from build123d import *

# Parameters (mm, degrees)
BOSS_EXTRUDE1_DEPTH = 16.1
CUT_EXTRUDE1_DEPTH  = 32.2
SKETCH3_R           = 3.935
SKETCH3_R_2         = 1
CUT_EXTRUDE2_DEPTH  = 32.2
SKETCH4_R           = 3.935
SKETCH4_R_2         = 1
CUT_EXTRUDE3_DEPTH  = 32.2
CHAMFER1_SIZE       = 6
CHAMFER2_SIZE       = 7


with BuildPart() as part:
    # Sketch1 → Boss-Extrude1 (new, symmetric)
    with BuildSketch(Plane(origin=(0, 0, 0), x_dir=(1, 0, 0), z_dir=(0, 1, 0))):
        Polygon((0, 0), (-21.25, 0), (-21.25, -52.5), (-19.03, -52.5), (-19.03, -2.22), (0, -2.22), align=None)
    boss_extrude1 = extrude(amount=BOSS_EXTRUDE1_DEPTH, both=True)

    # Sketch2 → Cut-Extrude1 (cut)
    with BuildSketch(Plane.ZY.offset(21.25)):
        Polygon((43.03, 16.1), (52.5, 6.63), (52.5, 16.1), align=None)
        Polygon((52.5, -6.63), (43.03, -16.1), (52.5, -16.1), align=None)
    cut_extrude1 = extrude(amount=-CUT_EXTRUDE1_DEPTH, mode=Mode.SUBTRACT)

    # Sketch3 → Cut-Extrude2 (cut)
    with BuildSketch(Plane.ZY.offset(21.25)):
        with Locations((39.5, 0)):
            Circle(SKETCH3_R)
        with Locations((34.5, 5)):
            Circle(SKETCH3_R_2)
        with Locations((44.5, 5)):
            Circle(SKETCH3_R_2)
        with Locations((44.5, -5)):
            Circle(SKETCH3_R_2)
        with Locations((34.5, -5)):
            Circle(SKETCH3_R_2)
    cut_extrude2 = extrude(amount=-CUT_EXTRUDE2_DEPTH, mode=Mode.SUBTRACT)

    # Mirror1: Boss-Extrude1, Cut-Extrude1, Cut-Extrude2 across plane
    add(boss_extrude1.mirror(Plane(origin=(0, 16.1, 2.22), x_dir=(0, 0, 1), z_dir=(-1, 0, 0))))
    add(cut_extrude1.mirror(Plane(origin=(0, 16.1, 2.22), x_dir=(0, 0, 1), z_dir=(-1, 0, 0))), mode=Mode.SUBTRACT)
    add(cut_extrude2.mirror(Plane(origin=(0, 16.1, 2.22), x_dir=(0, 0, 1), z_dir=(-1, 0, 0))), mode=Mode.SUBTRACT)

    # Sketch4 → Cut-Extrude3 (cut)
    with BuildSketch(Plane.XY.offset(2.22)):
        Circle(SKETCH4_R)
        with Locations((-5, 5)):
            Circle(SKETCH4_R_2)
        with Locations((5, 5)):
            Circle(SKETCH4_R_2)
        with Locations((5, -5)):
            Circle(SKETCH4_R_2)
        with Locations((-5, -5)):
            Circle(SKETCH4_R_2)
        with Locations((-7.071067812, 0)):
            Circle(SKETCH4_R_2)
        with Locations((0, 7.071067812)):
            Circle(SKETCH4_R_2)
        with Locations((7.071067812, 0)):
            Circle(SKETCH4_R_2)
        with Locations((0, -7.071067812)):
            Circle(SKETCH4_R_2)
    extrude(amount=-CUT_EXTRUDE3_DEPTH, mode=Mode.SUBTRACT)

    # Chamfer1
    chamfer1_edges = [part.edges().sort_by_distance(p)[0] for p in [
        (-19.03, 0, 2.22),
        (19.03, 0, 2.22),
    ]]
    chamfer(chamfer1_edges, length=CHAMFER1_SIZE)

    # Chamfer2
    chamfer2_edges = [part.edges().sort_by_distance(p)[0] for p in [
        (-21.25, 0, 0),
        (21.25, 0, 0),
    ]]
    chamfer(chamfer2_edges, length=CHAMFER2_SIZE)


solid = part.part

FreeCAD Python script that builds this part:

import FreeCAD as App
import Part
import Sketcher
from FreeCAD import Vector


def edges_at(feature, points):
    """Names of the edges that pass closest to the given points."""
    edges = feature.Shape.Edges
    near = lambda p: min(range(len(edges)), key=lambda i: edges[i].distToShape(Part.Vertex(*p))[0])
    return sorted({f"Edge{near(p) + 1}" for p in points})


def add_polygon(sketch, points):
    """Adds a closed chain of lines whose ends are joined by coincident constraints."""
    first, n = sketch.GeometryCount, len(points)
    for a, b in zip(points, points[1:] + points[:1]):
        sketch.addGeometry(Part.LineSegment(App.Vector(*a, 0), App.Vector(*b, 0)), False)
    for i in range(n):
        sketch.addConstraint(Sketcher.Constraint("Coincident", first + i, 2, first + (i + 1) % n, 1))

doc = App.newDocument("Part")
params = doc.addObject("Spreadsheet::Sheet", "Params")
for row, (alias, value) in enumerate([
    ("sketch1_height", "52.5 mm"),
    ("sketch1_width", "21.25 mm"),
    ("sketch1_width2", "2.22 mm"),
    ("pad1_length", "32.2 mm"),
    ("sketch2_width", "9.47 mm"),
    ("pocket1_length", "32.2 mm"),
    ("sketch3_diameter", "2 mm"),
    ("sketch3_diameter2", "7.87 mm"),
    ("pocket2_length", "32.2 mm"),
    ("sketch4_diameter", "2 mm"),
    ("sketch4_diameter2", "7.87 mm"),
    ("pocket3_length", "32.2 mm"),
    ("chamfer_size", "6 mm"),
    ("chamfer2_size", "7 mm"),
], start=1):
    params.set(f"A{row}", alias)
    params.set(f"B{row}", "=" + value)
    params.setAlias(f"B{row}", alias)

body = doc.addObject("PartDesign::Body", "Body")

# Sketch on XZ plane
sketch1 = doc.addObject("Sketcher::SketchObject", "Sketch")
body.addObject(sketch1)
sketch1.AttachmentSupport = (doc.XZ_Plane, [""])
sketch1.MapMode = "FlatFace"
add_polygon(sketch1, [(0, 0), (-21.2, 0), (-21.2, 52.5), (-19, 52.5), (-19, 2.2), (0, 2.2)])  # lines 0-5
sketch1.addConstraint([
    Sketcher.Constraint("Horizontal", 0),
    Sketcher.Constraint("Vertical", 1),
    Sketcher.Constraint("Horizontal", 2),
    Sketcher.Constraint("Vertical", 3),
    Sketcher.Constraint("Horizontal", 4),
    Sketcher.Constraint("Vertical", 5),
    Sketcher.Constraint("Coincident", 5, 2, -1, 1),
    Sketcher.Constraint("Equal", 2, 5),
    Sketcher.Constraint("DistanceY", 1, 1, 1, 2, 52.5),
    Sketcher.Constraint("DistanceX", 0, 2, 0, 1, 21.25),
    Sketcher.Constraint("DistanceX", 2, 1, 2, 2, 2.22),
])
sketch1.setExpression("Constraints[14]", "Params.sketch1_height")
sketch1.setExpression("Constraints[15]", "Params.sketch1_width")
sketch1.setExpression("Constraints[16]", "Params.sketch1_width2")
pad1 = doc.addObject("PartDesign::Pad", "Pad")
body.addObject(pad1)
pad1.Profile = sketch1
pad1.setExpression("Length", "Params.pad1_length")
pad1.Midplane = True

# Sketch on YZ plane
sketch2 = doc.addObject("Sketcher::SketchObject", "Sketch001")
body.addObject(sketch2)
sketch2.AttachmentSupport = (doc.YZ_Plane, [""])
sketch2.MapMode = "FlatFace"
sketch2.AttachmentOffset = App.Placement(Vector(0, 0, -21.25), App.Rotation())
add_polygon(sketch2, [(16, 43), (7, 52), (16, 52)])  # lines 0-2
add_polygon(sketch2, [(-7, 52), (-16, 43), (-16, 52)])  # lines 3-5
sketch2.addConstraint([
    Sketcher.Constraint("Horizontal", 1),
    Sketcher.Constraint("Vertical", 2),
    Sketcher.Constraint("Vertical", 4),
    Sketcher.Constraint("Horizontal", 5),
    Sketcher.Constraint("Symmetric", 2, 2, 3, 2, -2),
    Sketcher.Constraint("Symmetric", 0, 2, 5, 2, -2),
    Sketcher.Constraint("Perpendicular", 0, 3),
    Sketcher.Constraint("DistanceX", 1, 1, 1, 2, 9.47),
    Sketcher.Constraint("DistanceY", -1, 1, 0, 2, 52.5),
    Sketcher.Constraint("DistanceX", -1, 1, 1, 2, 16.1),
])
sketch2.setExpression("Constraints[13]", "Params.sketch2_width")
pocket1 = doc.addObject("PartDesign::Pocket", "Pocket")
body.addObject(pocket1)
pocket1.Profile = sketch2
pocket1.setExpression("Length", "Params.pocket1_length")
pocket1.Reversed = True

# Sketch on YZ plane
sketch3 = doc.addObject("Sketcher::SketchObject", "Sketch002")
body.addObject(sketch3)
sketch3.AttachmentSupport = (doc.YZ_Plane, [""])
sketch3.MapMode = "FlatFace"
sketch3.AttachmentOffset = App.Placement(Vector(0, 0, -21.25), App.Rotation())
sketch3.addGeometry([
    Part.Circle(Vector(0, 39.5, 0), Vector(0, 0, 1), 3.9),  # 0
    Part.Circle(Vector(5, 34.5, 0), Vector(0, 0, 1), 1),  # 1
    Part.Circle(Vector(5, 44.5, 0), Vector(0, 0, 1), 1),  # 2
    Part.Circle(Vector(-5, 44.5, 0), Vector(0, 0, 1), 1),  # 3
    Part.Circle(Vector(-5, 34.5, 0), Vector(0, 0, 1), 1),  # 4
], False)
sketch3.addConstraint([
    Sketcher.Constraint("Equal", 1, 2),
    Sketcher.Constraint("Equal", 2, 3),
    Sketcher.Constraint("Equal", 3, 4),
    Sketcher.Constraint("Symmetric", 2, 3, 3, 3, -2),
    Sketcher.Constraint("Symmetric", 1, 3, 4, 3, -2),
    Sketcher.Constraint("PointOnObject", 0, 3, -2),
    Sketcher.Constraint("Vertical", 1, 3, 2, 3),
    Sketcher.Constraint("Diameter", 1, 2.0),
    Sketcher.Constraint("Diameter", 0, 7.87),
    Sketcher.Constraint("DistanceX", -1, 1, 1, 3, 5.0),
    Sketcher.Constraint("DistanceY", 1, 3, 0, 3, 5.0),
    Sketcher.Constraint("DistanceY", 0, 3, 2, 3, 5.0),
    Sketcher.Constraint("DistanceY", -1, 1, 0, 3, 39.5),
])
sketch3.setExpression("Constraints[7]", "Params.sketch3_diameter")
sketch3.setExpression("Constraints[8]", "Params.sketch3_diameter2")
pocket2 = doc.addObject("PartDesign::Pocket", "Pocket001")
body.addObject(pocket2)
pocket2.Profile = sketch3
pocket2.setExpression("Length", "Params.pocket2_length")
pocket2.Reversed = True
doc.recompute()

mirrored = doc.addObject("PartDesign::Mirrored", "Mirrored")
body.addObject(mirrored)
mirrored.Originals = [pad1, pocket1, pocket2]
mirrored.MirrorPlane = (doc.YZ_Plane, [""])
body.Tip = mirrored

# Sketch on XY plane
sketch4 = doc.addObject("Sketcher::SketchObject", "Sketch003")
body.addObject(sketch4)
sketch4.AttachmentSupport = (doc.XY_Plane, [""])
sketch4.MapMode = "FlatFace"
sketch4.AttachmentOffset = App.Placement(Vector(0, 0, 2.22), App.Rotation())
sketch4.addGeometry([
    Part.Circle(Vector(0, 0, 0), Vector(0, 0, 1), 3.9),  # 0
    Part.Circle(Vector(-5, 5, 0), Vector(0, 0, 1), 1),  # 1
    Part.Circle(Vector(5, 5, 0), Vector(0, 0, 1), 1),  # 2
    Part.Circle(Vector(5, -5, 0), Vector(0, 0, 1), 1),  # 3
    Part.Circle(Vector(-5, -5, 0), Vector(0, 0, 1), 1),  # 4
    Part.Circle(Vector(-7.1, 0, 0), Vector(0, 0, 1), 1),  # 5
    Part.Circle(Vector(0, 7.1, 0), Vector(0, 0, 1), 1),  # 6
    Part.Circle(Vector(7.1, 0, 0), Vector(0, 0, 1), 1),  # 7
    Part.Circle(Vector(0, -7.1, 0), Vector(0, 0, 1), 1),  # 8
], False)
sketch4.addConstraint([
    Sketcher.Constraint("Coincident", 0, 3, -1, 1),
    Sketcher.Constraint("Equal", 1, 2),
    Sketcher.Constraint("Equal", 2, 3),
    Sketcher.Constraint("Equal", 3, 4),
    Sketcher.Constraint("Equal", 4, 5),
    Sketcher.Constraint("Equal", 5, 6),
    Sketcher.Constraint("Equal", 6, 7),
    Sketcher.Constraint("Equal", 7, 8),
    Sketcher.Constraint("Symmetric", 1, 3, 3, 3, -1, 1),
    Sketcher.Constraint("Symmetric", 2, 3, 4, 3, -1, 1),
    Sketcher.Constraint("Symmetric", 5, 3, 7, 3, -1, 1),
    Sketcher.Constraint("Symmetric", 6, 3, 8, 3, -1, 1),
    Sketcher.Constraint("Symmetric", 1, 3, 2, 3, -2),
    Sketcher.Constraint("PointOnObject", 5, 3, -1),
    Sketcher.Constraint("PointOnObject", 6, 3, -2),
    Sketcher.Constraint("Diameter", 1, 2.0),
    Sketcher.Constraint("Diameter", 0, 7.87),
    Sketcher.Constraint("DistanceX", 1, 3, -1, 1, 5.0),
    Sketcher.Constraint("DistanceY", -1, 1, 1, 3, 5.0),
    Sketcher.Constraint("DistanceX", 5, 3, -1, 1, 7.071068),
    Sketcher.Constraint("DistanceY", -1, 1, 6, 3, 7.071068),
])
sketch4.setExpression("Constraints[15]", "Params.sketch4_diameter")
sketch4.setExpression("Constraints[16]", "Params.sketch4_diameter2")
pocket3 = doc.addObject("PartDesign::Pocket", "Pocket002")
body.addObject(pocket3)
pocket3.Profile = sketch4
pocket3.setExpression("Length", "Params.pocket3_length")
doc.recompute()

chamfer = doc.addObject("PartDesign::Chamfer", "Chamfer")
body.addObject(chamfer)
chamfer.Base = (pocket3, edges_at(pocket3, [(-19.03, 0, 2.22), (19.03, 0, 2.22)]))
chamfer.setExpression("Size", "Params.chamfer_size")
doc.recompute()

chamfer2 = doc.addObject("PartDesign::Chamfer", "Chamfer001")
body.addObject(chamfer2)
chamfer2.Base = (chamfer, edges_at(chamfer, [(-21.25, 0, 0), (21.25, 0, 0)]))
chamfer2.setExpression("Size", "Params.chamfer2_size")

doc.recompute()
